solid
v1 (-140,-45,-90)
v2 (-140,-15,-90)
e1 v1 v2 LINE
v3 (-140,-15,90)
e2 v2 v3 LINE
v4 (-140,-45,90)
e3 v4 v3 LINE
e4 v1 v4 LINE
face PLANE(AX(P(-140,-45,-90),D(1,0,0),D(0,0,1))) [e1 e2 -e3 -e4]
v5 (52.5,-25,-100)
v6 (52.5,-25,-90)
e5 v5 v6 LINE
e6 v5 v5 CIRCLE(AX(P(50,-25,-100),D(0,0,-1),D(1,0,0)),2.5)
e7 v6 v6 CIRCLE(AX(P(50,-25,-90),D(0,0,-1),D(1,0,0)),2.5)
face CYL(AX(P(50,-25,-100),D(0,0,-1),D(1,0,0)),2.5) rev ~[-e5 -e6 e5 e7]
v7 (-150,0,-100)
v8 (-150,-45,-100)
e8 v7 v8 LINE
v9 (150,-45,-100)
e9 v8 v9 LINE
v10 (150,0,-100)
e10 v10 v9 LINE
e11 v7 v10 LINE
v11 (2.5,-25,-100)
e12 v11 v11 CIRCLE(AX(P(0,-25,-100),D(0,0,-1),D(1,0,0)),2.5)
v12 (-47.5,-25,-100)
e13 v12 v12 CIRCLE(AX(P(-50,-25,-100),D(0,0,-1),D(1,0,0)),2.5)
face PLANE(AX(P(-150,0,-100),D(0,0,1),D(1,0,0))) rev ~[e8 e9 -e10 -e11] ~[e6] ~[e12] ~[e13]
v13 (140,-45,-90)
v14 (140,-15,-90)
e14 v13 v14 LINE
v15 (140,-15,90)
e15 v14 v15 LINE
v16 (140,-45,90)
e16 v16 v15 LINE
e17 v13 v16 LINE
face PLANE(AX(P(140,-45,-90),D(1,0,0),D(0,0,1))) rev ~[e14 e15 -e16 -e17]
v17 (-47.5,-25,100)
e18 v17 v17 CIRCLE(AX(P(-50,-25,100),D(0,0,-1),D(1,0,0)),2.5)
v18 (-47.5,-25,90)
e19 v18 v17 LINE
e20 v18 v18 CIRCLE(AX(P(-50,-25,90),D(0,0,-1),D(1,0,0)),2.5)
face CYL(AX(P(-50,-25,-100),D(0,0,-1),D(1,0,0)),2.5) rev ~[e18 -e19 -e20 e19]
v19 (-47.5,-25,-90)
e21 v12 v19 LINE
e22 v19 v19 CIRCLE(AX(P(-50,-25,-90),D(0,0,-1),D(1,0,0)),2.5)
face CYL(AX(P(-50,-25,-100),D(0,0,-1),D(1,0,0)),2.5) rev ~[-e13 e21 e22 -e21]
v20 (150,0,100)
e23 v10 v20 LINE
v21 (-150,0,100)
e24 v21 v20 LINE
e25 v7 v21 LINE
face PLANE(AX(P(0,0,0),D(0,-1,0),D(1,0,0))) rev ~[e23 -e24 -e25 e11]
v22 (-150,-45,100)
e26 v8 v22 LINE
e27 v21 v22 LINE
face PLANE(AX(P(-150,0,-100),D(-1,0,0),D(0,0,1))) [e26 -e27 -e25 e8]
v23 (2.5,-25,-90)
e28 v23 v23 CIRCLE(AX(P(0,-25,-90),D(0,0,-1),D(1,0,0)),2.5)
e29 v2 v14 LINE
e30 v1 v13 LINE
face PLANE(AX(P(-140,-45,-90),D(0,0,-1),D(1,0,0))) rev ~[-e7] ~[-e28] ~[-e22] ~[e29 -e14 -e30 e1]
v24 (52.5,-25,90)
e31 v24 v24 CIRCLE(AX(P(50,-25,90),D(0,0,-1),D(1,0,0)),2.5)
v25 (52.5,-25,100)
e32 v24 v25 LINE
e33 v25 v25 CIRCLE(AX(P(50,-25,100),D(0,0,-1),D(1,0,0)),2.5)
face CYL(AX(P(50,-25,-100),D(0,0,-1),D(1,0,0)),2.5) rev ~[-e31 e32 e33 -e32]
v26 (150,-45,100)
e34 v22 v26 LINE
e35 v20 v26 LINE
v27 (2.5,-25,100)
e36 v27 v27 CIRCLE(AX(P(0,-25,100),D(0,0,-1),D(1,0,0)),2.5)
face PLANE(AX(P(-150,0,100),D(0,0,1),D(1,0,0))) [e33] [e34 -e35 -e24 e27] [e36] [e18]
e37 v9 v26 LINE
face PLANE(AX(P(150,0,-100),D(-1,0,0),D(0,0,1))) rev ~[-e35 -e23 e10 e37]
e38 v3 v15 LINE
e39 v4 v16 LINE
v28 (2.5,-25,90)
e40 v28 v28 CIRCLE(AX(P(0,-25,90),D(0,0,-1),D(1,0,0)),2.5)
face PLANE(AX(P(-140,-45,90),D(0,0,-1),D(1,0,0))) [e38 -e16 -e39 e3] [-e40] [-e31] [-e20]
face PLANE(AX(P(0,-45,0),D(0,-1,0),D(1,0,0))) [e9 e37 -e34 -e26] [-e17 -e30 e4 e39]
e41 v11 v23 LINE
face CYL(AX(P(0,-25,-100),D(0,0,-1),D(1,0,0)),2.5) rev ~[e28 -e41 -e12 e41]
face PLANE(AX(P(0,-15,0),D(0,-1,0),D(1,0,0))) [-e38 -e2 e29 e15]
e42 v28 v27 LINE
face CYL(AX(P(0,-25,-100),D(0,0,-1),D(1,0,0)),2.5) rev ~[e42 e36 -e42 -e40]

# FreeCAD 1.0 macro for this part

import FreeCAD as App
import Part
import Sketcher
from FreeCAD import Vector
Q = App.Units.Quantity

doc = App.newDocument("Part")
body = doc.addObject("PartDesign::Body", "Body")

# Sketch on XZ plane
sketch1 = body.newObject("Sketcher::SketchObject", "Sketch")
sketch1.AttachmentSupport = (doc.getObject("XZ_Plane"), [""])
sketch1.MapMode = "FlatFace"
sketch1.addGeometry(Part.LineSegment(Vector(-150, 100, 0), Vector(-150, -100, 0)), False)
sketch1.addGeometry(Part.LineSegment(Vector(-150, -100, 0), Vector(150, -100, 0)), False)
sketch1.addGeometry(Part.LineSegment(Vector(150, -100, 0), Vector(150, 100, 0)), False)
sketch1.addGeometry(Part.LineSegment(Vector(150, 100, 0), Vector(-150, 100, 0)), False)
sketch1.addConstraint(Sketcher.Constraint("Coincident", 0, 2, 1, 1))
sketch1.addConstraint(Sketcher.Constraint("Coincident", 1, 2, 2, 1))
sketch1.addConstraint(Sketcher.Constraint("Coincident", 2, 2, 3, 1))
sketch1.addConstraint(Sketcher.Constraint("Coincident", 3, 2, 0, 1))
sketch1.addConstraint(Sketcher.Constraint("Vertical", 0))
sketch1.addConstraint(Sketcher.Constraint("Horizontal", 1))
sketch1.addConstraint(Sketcher.Constraint("Vertical", 2))
sketch1.addConstraint(Sketcher.Constraint("Horizontal", 3))
sketch1.addConstraint(Sketcher.Constraint("Symmetric", 0, 2, 2, 2, -1, 1))
sketch1.addConstraint(Sketcher.Constraint("DistanceX", 1, 1, 1, 2, Q("300 mm")))
sketch1.addConstraint(Sketcher.Constraint("DistanceY", 0, 2, 0, 1, Q("200 mm")))
pad1 = body.newObject("PartDesign::Pad", "Pad")
pad1.Profile = sketch1
pad1.Length = 45

# Sketch on XZ plane
sketch2 = body.newObject("Sketcher::SketchObject", "Sketch001")
sketch2.AttachmentSupport = (doc.getObject("XZ_Plane"), [""])
sketch2.MapMode = "FlatFace"
sketch2.AttachmentOffset = App.Placement(Vector(0, 0, 45), App.Rotation())
sketch2.addGeometry(Part.LineSegment(Vector(-140, 90, 0), Vector(-140, -90, 0)), False)
sketch2.addGeometry(Part.LineSegment(Vector(-140, -90, 0), Vector(140, -90, 0)), False)
sketch2.addGeometry(Part.LineSegment(Vector(140, -90, 0), Vector(140, 90, 0)), False)
sketch2.addGeometry(Part.LineSegment(Vector(140, 90, 0), Vector(-140, 90, 0)), False)
sketch2.addConstraint(Sketcher.Constraint("Coincident", 0, 2, 1, 1))
sketch2.addConstraint(Sketcher.Constraint("Coincident", 1, 2, 2, 1))
sketch2.addConstraint(Sketcher.Constraint("Coincident", 2, 2, 3, 1))
sketch2.addConstraint(Sketcher.Constraint("Coincident", 3, 2, 0, 1))
sketch2.addConstraint(Sketcher.Constraint("Vertical", 0))
sketch2.addConstraint(Sketcher.Constraint("Horizontal", 1))
sketch2.addConstraint(Sketcher.Constraint("Vertical", 2))
sketch2.addConstraint(Sketcher.Constraint("Horizontal", 3))
sketch2.addConstraint(Sketcher.Constraint("Symmetric", 0, 2, 2, 2, -1, 1))
sketch2.addConstraint(Sketcher.Constraint("DistanceX", 1, 1, 1, 2, Q("280 mm")))
sketch2.addConstraint(Sketcher.Constraint("DistanceY", 0, 2, 0, 1, Q("180 mm")))
pocket1 = body.newObject("PartDesign::Pocket", "Pocket")
pocket1.Profile = sketch2
pocket1.Length = 30

# Sketch on XY plane
sketch3 = body.newObject("Sketcher::SketchObject", "Sketch002")
sketch3.AttachmentSupport = (doc.getObject("XY_Plane"), [""])
sketch3.MapMode = "FlatFace"
sketch3.AttachmentOffset = App.Placement(Vector(0, 0, -100), App.Rotation())
sketch3.addGeometry(Part.Circle(Vector(-50, -25, 0), Vector(0, 0, 1), 2.5), False)
sketch3.addGeometry(Part.Circle(Vector(0, -25, 0), Vector(0, 0, 1), 2.5), False)
sketch3.addGeometry(Part.Circle(Vector(50, -25, 0), Vector(0, 0, 1), 2.5), False)
sketch3.addConstraint(Sketcher.Constraint("Equal", 0, 1))
sketch3.addConstraint(Sketcher.Constraint("Equal", 1, 2))
sketch3.addConstraint(Sketcher.Constraint("Symmetric", 0, 3, 2, 3, -2))
sketch3.addConstraint(Sketcher.Constraint("PointOnObject", 1, 3, -2))
sketch3.addConstraint(Sketcher.Constraint("Horizontal", 0, 3, 1, 3))
sketch3.addConstraint(Sketcher.Constraint("Diameter", 0, Q("5 mm")))
sketch3.addConstraint(Sketcher.Constraint("DistanceX", 0, 3, -1, 1, Q("50 mm")))
sketch3.addConstraint(Sketcher.Constraint("DistanceY", 0, 3, -1, 1, Q("25 mm")))
pocket2 = body.newObject("PartDesign::Pocket", "Pocket001")
pocket2.Profile = sketch3
pocket2.Type = "ThroughAll"
pocket2.Reversed = True

doc.recompute()
